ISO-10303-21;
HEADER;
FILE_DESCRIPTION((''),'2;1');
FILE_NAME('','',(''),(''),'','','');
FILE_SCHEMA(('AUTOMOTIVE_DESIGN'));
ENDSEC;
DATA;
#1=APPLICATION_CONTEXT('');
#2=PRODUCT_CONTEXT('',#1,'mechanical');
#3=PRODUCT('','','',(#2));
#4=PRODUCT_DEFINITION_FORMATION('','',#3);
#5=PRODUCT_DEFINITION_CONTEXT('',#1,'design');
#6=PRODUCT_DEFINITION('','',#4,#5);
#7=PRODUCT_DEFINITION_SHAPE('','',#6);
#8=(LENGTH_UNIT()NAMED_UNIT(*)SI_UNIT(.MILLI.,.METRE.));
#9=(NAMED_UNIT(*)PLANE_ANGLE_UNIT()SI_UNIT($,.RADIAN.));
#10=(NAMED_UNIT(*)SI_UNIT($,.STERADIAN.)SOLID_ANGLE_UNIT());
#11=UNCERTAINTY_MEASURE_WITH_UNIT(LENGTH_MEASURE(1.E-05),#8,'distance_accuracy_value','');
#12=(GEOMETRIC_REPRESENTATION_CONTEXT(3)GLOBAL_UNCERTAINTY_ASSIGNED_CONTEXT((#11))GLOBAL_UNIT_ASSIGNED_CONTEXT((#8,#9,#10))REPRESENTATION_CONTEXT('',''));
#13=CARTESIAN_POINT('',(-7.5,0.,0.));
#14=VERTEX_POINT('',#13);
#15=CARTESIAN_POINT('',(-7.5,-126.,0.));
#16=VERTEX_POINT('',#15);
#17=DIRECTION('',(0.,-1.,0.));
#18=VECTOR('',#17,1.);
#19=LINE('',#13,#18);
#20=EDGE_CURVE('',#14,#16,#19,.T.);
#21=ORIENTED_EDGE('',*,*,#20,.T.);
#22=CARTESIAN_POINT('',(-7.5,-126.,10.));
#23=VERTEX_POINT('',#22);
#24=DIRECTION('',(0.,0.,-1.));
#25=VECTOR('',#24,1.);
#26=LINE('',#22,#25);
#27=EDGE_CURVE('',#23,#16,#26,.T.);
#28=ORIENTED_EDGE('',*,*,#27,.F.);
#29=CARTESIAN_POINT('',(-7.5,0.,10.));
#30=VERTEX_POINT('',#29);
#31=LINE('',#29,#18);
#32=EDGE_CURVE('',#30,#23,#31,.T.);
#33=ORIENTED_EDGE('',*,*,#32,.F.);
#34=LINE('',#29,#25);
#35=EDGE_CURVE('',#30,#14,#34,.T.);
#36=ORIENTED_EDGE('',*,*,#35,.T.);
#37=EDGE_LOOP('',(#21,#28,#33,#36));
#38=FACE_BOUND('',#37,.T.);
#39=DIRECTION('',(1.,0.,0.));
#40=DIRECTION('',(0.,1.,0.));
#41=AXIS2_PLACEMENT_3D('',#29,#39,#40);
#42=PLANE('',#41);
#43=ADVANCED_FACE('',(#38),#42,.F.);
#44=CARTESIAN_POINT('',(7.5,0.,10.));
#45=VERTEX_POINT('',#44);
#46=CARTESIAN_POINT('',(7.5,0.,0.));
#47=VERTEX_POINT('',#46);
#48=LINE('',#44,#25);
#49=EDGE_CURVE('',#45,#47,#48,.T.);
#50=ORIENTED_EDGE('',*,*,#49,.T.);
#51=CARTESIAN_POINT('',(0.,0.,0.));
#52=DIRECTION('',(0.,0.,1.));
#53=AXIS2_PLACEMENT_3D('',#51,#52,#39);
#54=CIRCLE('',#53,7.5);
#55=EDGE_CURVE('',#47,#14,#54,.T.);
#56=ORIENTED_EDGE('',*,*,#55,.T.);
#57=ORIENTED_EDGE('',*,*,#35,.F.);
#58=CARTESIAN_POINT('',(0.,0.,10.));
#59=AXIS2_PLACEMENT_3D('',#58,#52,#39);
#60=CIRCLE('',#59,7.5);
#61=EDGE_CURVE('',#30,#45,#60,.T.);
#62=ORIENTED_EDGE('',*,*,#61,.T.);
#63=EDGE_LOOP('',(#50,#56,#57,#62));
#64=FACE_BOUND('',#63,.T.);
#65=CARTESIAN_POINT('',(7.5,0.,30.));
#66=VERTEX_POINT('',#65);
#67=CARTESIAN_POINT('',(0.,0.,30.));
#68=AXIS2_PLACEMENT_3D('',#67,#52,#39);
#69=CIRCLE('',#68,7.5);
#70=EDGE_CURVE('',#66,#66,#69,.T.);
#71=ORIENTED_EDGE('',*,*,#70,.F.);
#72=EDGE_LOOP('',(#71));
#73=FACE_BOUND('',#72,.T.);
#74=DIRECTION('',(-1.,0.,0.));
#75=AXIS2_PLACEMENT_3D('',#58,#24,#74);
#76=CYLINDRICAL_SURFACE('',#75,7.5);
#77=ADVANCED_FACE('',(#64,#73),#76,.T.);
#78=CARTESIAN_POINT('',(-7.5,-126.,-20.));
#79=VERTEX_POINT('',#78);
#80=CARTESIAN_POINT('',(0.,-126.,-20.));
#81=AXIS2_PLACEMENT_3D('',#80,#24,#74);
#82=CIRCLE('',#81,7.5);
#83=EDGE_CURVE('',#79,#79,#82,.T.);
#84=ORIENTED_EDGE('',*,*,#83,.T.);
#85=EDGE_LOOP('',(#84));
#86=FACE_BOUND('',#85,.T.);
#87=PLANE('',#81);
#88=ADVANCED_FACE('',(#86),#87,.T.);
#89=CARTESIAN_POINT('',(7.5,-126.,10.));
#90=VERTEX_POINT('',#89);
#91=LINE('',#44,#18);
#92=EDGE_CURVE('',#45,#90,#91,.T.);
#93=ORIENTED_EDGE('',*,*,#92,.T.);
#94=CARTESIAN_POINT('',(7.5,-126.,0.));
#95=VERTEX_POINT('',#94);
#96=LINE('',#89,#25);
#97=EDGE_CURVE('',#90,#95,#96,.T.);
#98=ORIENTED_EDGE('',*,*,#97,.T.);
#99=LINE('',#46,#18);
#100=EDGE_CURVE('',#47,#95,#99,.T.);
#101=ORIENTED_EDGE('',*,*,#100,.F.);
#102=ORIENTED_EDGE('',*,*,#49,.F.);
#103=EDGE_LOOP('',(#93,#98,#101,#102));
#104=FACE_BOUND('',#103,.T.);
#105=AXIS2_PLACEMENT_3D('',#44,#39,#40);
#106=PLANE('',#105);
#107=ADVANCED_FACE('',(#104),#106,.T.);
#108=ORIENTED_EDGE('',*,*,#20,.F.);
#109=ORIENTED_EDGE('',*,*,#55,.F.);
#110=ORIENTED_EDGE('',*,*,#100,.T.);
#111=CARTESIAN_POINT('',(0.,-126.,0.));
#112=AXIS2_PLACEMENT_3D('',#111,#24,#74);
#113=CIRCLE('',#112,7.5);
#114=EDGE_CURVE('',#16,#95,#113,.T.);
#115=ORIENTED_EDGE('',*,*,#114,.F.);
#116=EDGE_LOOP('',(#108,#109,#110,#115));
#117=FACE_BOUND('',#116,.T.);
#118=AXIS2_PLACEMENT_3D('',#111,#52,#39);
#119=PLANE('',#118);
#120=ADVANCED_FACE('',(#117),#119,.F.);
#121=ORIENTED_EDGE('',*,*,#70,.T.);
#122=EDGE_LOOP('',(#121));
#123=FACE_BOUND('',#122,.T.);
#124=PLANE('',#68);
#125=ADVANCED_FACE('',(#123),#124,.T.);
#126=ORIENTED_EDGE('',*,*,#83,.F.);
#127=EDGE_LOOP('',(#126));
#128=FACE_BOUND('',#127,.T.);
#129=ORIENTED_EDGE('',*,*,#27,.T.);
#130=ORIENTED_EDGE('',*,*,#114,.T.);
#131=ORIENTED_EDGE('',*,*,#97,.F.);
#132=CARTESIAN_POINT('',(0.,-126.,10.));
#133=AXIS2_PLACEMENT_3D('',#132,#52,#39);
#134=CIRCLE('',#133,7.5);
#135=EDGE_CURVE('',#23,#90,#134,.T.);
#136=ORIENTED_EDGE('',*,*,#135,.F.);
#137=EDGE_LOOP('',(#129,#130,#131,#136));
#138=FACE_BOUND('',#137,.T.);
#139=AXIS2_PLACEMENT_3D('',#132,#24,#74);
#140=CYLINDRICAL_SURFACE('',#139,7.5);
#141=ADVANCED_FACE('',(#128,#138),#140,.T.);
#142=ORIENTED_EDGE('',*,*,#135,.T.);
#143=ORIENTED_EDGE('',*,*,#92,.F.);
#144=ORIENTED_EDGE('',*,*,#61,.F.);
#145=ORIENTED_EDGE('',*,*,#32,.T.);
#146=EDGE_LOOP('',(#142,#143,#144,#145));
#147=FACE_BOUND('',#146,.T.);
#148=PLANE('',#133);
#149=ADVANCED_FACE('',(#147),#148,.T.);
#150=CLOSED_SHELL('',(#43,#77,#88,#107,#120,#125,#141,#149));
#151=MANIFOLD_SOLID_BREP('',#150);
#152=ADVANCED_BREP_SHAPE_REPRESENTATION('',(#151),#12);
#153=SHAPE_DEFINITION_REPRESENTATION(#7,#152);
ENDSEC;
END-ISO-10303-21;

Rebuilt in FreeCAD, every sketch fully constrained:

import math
import FreeCAD as App
import Part
import Sketcher
from FreeCAD import Vector
Q = App.Units.Quantity

doc = App.newDocument("Part")
body = doc.addObject("PartDesign::Body", "Body")

# Sketch on XY plane
sketch1 = body.newObject("Sketcher::SketchObject", "Sketch")
sketch1.AttachmentSupport = (doc.getObject("XY_Plane"), [""])
sketch1.MapMode = "FlatFace"
sketch1.addGeometry([
    Part.LineSegment(Vector(7.5, -126, 0), Vector(7.5, 0, 0)),
    Part.ArcOfCircle(Part.Circle(Vector(0, 0, 0), Vector(0, 0, 1), 7.5), math.radians(0), math.radians(180)),
    Part.LineSegment(Vector(-7.5, 0, 0), Vector(-7.5, -126, 0)),
    Part.ArcOfCircle(Part.Circle(Vector(0, -126, 0), Vector(0, 0, 1), 7.5), math.radians(180), math.radians(360)),
], False)
sketch1.addConstraint([
    Sketcher.Constraint("Tangent", 0, 2, 1, 1),
    Sketcher.Constraint("Tangent", 1, 2, 2, 1),
    Sketcher.Constraint("Tangent", 2, 2, 3, 1),
    Sketcher.Constraint("Tangent", 3, 2, 0, 1),
    Sketcher.Constraint("Vertical", 0),
    Sketcher.Constraint("Vertical", 2),
    Sketcher.Constraint("Coincident", 1, 3, -1, 1),
    Sketcher.Constraint("Radius", 1, Q("7.5 mm")),
    Sketcher.Constraint("DistanceY", 0, 1, 0, 2, Q("126 mm")),
])
pad1 = body.newObject("PartDesign::Pad", "Pad")
pad1.Profile = sketch1
pad1.Length = 10

# Sketch on XY plane
sketch2 = body.newObject("Sketcher::SketchObject", "Sketch001")
sketch2.AttachmentSupport = (doc.getObject("XY_Plane"), [""])
sketch2.MapMode = "FlatFace"
sketch2.AttachmentOffset = App.Placement(Vector(0, 0, 10), App.Rotation())
sketch2.addGeometry(Part.Circle(Vector(0, 0, 0), Vector(0, 0, 1), 7.5), False)
sketch2.addConstraint([
    Sketcher.Constraint("Coincident", 0, 3, -1, 1),
    Sketcher.Constraint("Diameter", 0, Q("15 mm")),
])
pad2 = body.newObject("PartDesign::Pad", "Pad001")
pad2.Profile = sketch2
pad2.Length = 20

# Sketch on XY plane
sketch3 = body.newObject("Sketcher::SketchObject", "Sketch002")
sketch3.AttachmentSupport = (doc.getObject("XY_Plane"), [""])
sketch3.MapMode = "FlatFace"
sketch3.AttachmentOffset = App.Placement(Vector(0, 0, -20), App.Rotation())
sketch3.addGeometry(Part.Circle(Vector(0, -126, 0), Vector(0, 0, 1), 7.5), False)
sketch3.addConstraint([
    Sketcher.Constraint("PointOnObject", 0, 3, -2),
    Sketcher.Constraint("Diameter", 0, Q("15 mm")),
    Sketcher.Constraint("DistanceY", 0, 3, -1, 1, Q("126 mm")),
])
pad3 = body.newObject("PartDesign::Pad", "Pad002")
pad3.Profile = sketch3
pad3.Length = 20

doc.recompute()
